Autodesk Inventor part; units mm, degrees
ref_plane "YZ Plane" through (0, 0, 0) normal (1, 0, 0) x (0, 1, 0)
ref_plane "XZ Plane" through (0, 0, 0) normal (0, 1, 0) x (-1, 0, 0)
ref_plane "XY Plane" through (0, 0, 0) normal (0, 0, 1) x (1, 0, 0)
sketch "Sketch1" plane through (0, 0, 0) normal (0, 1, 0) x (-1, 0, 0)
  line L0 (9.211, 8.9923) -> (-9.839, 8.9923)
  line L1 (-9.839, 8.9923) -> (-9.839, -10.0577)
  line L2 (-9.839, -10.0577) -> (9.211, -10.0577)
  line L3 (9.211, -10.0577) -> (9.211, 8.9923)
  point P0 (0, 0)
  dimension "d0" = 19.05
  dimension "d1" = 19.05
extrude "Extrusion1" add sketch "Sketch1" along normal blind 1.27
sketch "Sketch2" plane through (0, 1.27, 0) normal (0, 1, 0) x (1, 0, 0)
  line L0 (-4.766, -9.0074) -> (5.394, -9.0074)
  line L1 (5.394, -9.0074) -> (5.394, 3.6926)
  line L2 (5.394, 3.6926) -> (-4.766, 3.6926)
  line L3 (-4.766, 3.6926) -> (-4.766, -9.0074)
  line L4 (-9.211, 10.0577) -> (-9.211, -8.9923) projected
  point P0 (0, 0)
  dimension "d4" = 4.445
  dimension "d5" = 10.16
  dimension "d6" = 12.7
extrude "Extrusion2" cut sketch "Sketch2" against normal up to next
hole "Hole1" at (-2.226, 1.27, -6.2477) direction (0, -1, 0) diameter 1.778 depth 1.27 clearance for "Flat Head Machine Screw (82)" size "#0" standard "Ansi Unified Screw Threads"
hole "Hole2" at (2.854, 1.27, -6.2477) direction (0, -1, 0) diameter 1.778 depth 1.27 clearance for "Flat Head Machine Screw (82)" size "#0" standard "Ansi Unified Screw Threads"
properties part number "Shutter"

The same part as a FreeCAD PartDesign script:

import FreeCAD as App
import Part
import Sketcher
Q = App.Units.Quantity

doc = App.newDocument("Part")
params = doc.addObject("Spreadsheet::Sheet", "Params")
for row, (alias, value) in enumerate([
    ("sketch1_width", "0.75 in"),
    ("pad1_length", "0.05 in"),
    ("sketch2_width", "0.4 in"),
    ("sketch2_height", "0.5 in"),
    ("sketch3_diameter", "0.07 in"),
    ("hole_diameter", "0.07 in"),
    ("hole_depth", "0.05 in"),
    ("sketch4_diameter", "0.07 in"),
    ("hole2_diameter", "0.07 in"),
    ("hole2_depth", "0.05 in"),
], start=1):
    params.set(f"A{row}", alias)
    params.set(f"B{row}", "=" + value)
    params.setAlias(f"B{row}", alias)

body = doc.addObject("PartDesign::Body", "Body")

sketch1 = body.newObject("Sketcher::SketchObject", "Sketch")
sketch1.AttachmentSupport = (doc.getObject("XZ_Plane"), [""])
sketch1.MapMode = "FlatFace"
sketch1.addGeometry(Part.LineSegment(App.Vector(-9, -10, 0), App.Vector(-9, 9, 0)), False)
sketch1.addGeometry(Part.LineSegment(App.Vector(-9, 9, 0), App.Vector(10, 9, 0)), False)
sketch1.addGeometry(Part.LineSegment(App.Vector(10, 9, 0), App.Vector(10, -10, 0)), False)
sketch1.addGeometry(Part.LineSegment(App.Vector(10, -10, 0), App.Vector(-9, -10, 0)), False)
sketch1.addConstraint(Sketcher.Constraint("Coincident", 0, 2, 1, 1))
sketch1.addConstraint(Sketcher.Constraint("Coincident", 1, 2, 2, 1))
sketch1.addConstraint(Sketcher.Constraint("Coincident", 2, 2, 3, 1))
sketch1.addConstraint(Sketcher.Constraint("Coincident", 3, 2, 0, 1))
sketch1.addConstraint(Sketcher.Constraint("Vertical", 0))
sketch1.addConstraint(Sketcher.Constraint("Horizontal", 1))
sketch1.addConstraint(Sketcher.Constraint("Vertical", 2))
sketch1.addConstraint(Sketcher.Constraint("Horizontal", 3))
sketch1.addConstraint(Sketcher.Constraint("Equal", 3, 0))
sketch1.addConstraint(Sketcher.Constraint("DistanceX", 1, 1, 1, 2, Q("0.75 in")))
sketch1.addConstraint(Sketcher.Constraint("DistanceX", 0, 2, -1, 1, 9.211))
sketch1.addConstraint(Sketcher.Constraint("DistanceY", -1, 1, 0, 2, 8.9923))
sketch1.setExpression("Constraints[9]", "Params.sketch1_width")
pad1 = body.newObject("PartDesign::Pad", "Pad")
pad1.Profile = sketch1
pad1.setExpression("Length", "Params.pad1_length")
pad1.Reversed = True

sketch2 = body.newObject("Sketcher::SketchObject", "Sketch001")
sketch2.AttachmentSupport = (doc.getObject("XZ_Plane"), [""])
sketch2.MapMode = "FlatFace"
sketch2.AttachmentOffset = App.Placement(App.Vector(0, 0, -0.05 * 25.4), App.Rotation())
sketch2.addGeometry(Part.LineSegment(App.Vector(-5, -4, 0), App.Vector(-5, 9, 0)), False)
sketch2.addGeometry(Part.LineSegment(App.Vector(-5, 9, 0), App.Vector(5, 9, 0)), False)
sketch2.addGeometry(Part.LineSegment(App.Vector(5, 9, 0), App.Vector(5, -4, 0)), False)
sketch2.addGeometry(Part.LineSegment(App.Vector(5, -4, 0), App.Vector(-5, -4, 0)), False)
sketch2.addConstraint(Sketcher.Constraint("Coincident", 0, 2, 1, 1))
sketch2.addConstraint(Sketcher.Constraint("Coincident", 1, 2, 2, 1))
sketch2.addConstraint(Sketcher.Constraint("Coincident", 2, 2, 3, 1))
sketch2.addConstraint(Sketcher.Constraint("Coincident", 3, 2, 0, 1))
sketch2.addConstraint(Sketcher.Constraint("Vertical", 0))
sketch2.addConstraint(Sketcher.Constraint("Horizontal", 1))
sketch2.addConstraint(Sketcher.Constraint("Vertical", 2))
sketch2.addConstraint(Sketcher.Constraint("Horizontal", 3))
sketch2.addConstraint(Sketcher.Constraint("DistanceX", 1, 1, 1, 2, Q("0.4 in")))
sketch2.addConstraint(Sketcher.Constraint("DistanceY", 0, 1, 0, 2, Q("0.5 in")))
sketch2.addConstraint(Sketcher.Constraint("DistanceX", 0, 2, -1, 1, 4.766))
sketch2.addConstraint(Sketcher.Constraint("DistanceY", -1, 1, 0, 2, 9.0074))
sketch2.setExpression("Constraints[8]", "Params.sketch2_width")
sketch2.setExpression("Constraints[9]", "Params.sketch2_height")
pocket1 = body.newObject("PartDesign::Pocket", "Pocket")
pocket1.Profile = sketch2
pocket1.Type = "UpToFirst"
pocket1.Reversed = True

sketch3 = body.newObject("Sketcher::SketchObject", "Sketch002")
sketch3.AttachmentSupport = (doc.getObject("XZ_Plane"), [""])
sketch3.MapMode = "FlatFace"
sketch3.AttachmentOffset = App.Placement(App.Vector(0, 0, -0.05 * 25.4), App.Rotation())
sketch3.addGeometry(Part.Circle(App.Vector(-2.2, -6.2, 0), App.Vector(0, 0, 1), 0.9), False)
sketch3.addConstraint(Sketcher.Constraint("Diameter", 0, Q("0.07 in")))
sketch3.addConstraint(Sketcher.Constraint("DistanceX", 0, 3, -1, 1, 2.226))
sketch3.addConstraint(Sketcher.Constraint("DistanceY", 0, 3, -1, 1, 6.2477))
sketch3.setExpression("Constraints[0]", "Params.sketch3_diameter")
doc.recompute()
hole = body.newObject("PartDesign::Hole", "Hole")
hole.Profile = sketch3
hole.ThreadType = "None"
hole.setExpression("Diameter", "Params.hole_diameter")
hole.DepthType = "Dimension"
hole.setExpression("Depth", "Params.hole_depth")
hole.DrillPoint = "Flat"
hole.Reversed = True

sketch4 = body.newObject("Sketcher::SketchObject", "Sketch003")
sketch4.AttachmentSupport = (doc.getObject("XZ_Plane"), [""])
sketch4.MapMode = "FlatFace"
sketch4.AttachmentOffset = App.Placement(App.Vector(0, 0, -0.05 * 25.4), App.Rotation())
sketch4.addGeometry(Part.Circle(App.Vector(2.9, -6.2, 0), App.Vector(0, 0, 1), 0.9), False)
sketch4.addConstraint(Sketcher.Constraint("Diameter", 0, Q("0.07 in")))
sketch4.addConstraint(Sketcher.Constraint("DistanceX", -1, 1, 0, 3, 2.854))
sketch4.addConstraint(Sketcher.Constraint("DistanceY", 0, 3, -1, 1, 6.2477))
sketch4.setExpression("Constraints[0]", "Params.sketch4_diameter")
doc.recompute()
hole2 = body.newObject("PartDesign::Hole", "Hole001")
hole2.Profile = sketch4
hole2.ThreadType = "None"
hole2.setExpression("Diameter", "Params.hole2_diameter")
hole2.DepthType = "Dimension"
hole2.setExpression("Depth", "Params.hole2_depth")
hole2.DrillPoint = "Flat"
hole2.Reversed = True

doc.recompute()
